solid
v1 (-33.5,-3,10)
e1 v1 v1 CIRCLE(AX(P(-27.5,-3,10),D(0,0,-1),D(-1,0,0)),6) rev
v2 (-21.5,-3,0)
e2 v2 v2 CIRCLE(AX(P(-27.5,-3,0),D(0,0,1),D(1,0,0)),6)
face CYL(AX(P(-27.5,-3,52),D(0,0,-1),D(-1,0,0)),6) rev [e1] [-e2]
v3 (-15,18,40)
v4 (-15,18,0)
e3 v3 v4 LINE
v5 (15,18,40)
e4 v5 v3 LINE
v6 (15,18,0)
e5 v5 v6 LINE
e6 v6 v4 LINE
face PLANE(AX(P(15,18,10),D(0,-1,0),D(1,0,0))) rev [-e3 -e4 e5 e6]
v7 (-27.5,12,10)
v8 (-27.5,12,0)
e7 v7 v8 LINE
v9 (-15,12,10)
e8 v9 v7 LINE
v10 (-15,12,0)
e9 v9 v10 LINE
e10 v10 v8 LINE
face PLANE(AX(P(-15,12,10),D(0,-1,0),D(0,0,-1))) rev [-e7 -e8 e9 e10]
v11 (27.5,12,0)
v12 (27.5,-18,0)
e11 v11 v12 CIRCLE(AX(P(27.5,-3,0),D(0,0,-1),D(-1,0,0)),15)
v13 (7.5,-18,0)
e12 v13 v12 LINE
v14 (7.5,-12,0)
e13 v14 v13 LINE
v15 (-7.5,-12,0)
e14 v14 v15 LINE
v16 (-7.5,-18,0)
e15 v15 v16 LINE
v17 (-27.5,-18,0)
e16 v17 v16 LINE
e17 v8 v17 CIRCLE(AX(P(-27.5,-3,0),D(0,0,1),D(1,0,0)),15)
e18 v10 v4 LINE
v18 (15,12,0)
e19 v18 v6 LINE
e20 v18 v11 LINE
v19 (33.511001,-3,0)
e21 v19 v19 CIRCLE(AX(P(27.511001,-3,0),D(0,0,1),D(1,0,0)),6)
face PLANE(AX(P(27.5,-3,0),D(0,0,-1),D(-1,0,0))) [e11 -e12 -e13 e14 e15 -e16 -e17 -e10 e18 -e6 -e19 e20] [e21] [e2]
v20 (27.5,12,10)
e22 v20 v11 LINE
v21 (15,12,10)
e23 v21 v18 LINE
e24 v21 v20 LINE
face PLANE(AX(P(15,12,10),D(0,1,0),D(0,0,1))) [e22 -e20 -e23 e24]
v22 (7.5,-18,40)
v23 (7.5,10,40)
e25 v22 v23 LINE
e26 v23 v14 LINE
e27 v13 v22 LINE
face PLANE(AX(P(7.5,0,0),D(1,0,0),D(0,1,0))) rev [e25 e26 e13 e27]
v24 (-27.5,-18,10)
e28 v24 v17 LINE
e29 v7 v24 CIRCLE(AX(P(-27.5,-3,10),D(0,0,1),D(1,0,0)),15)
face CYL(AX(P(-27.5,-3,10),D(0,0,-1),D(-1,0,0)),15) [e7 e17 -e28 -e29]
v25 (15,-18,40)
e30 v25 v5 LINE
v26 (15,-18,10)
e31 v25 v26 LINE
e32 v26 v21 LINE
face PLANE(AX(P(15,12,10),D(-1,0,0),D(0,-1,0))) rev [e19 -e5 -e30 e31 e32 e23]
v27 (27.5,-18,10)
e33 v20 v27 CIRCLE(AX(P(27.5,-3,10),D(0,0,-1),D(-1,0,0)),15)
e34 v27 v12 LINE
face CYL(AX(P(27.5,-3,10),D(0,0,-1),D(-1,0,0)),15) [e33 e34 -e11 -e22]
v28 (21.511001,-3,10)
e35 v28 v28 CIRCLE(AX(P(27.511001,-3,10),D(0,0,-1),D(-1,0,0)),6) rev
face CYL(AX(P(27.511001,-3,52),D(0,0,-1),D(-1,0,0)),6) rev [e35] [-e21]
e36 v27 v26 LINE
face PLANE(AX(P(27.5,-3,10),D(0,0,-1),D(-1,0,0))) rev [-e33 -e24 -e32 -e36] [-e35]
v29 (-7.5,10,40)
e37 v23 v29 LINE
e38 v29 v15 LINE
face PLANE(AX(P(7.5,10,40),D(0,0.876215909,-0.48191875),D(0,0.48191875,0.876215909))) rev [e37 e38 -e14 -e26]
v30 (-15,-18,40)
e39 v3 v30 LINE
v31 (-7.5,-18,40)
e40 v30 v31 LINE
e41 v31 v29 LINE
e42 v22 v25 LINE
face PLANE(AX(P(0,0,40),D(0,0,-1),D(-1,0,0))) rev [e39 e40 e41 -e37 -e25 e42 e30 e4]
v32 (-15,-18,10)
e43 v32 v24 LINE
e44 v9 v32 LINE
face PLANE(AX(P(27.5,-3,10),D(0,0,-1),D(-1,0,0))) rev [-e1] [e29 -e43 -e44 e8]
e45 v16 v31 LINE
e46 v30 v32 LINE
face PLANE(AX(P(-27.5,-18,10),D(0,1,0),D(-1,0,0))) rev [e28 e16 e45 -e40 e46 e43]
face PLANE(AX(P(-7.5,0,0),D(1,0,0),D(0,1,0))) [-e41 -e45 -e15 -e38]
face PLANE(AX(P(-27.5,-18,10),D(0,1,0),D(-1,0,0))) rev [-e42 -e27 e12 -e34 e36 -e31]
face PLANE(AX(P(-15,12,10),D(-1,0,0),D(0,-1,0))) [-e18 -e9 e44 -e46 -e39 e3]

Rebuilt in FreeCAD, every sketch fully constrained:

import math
import FreeCAD as App
import Part
import Sketcher
Q = App.Units.Quantity

doc = App.newDocument("Part")
body = doc.addObject("PartDesign::Body", "Body")

sketch1 = body.newObject("Sketcher::SketchObject", "Sketch")
sketch1.AttachmentSupport = (doc.getObject("XY_Plane"), [""])
sketch1.MapMode = "FlatFace"
sketch1.addGeometry([
    Part.ArcOfCircle(Part.Circle(App.Vector(-28, -3, 0), App.Vector(0, 0, 1), 15), math.radians(180), math.radians(270)),
    Part.LineSegment(App.Vector(-28, -18, 0), App.Vector(28, -18, 0)),
    Part.ArcOfCircle(Part.Circle(App.Vector(28, -3, 0), App.Vector(0, 0, 1), 15), math.radians(-90), math.radians(0)),
    Part.ArcOfCircle(Part.Circle(App.Vector(28, -3, 0), App.Vector(0, 0, 1), 15), math.radians(0), math.radians(90)),
    Part.LineSegment(App.Vector(28, 12, 0), App.Vector(15, 12, 0)),
    Part.LineSegment(App.Vector(15, 12, 0), App.Vector(15, 18, 0)),
    Part.LineSegment(App.Vector(15, 18, 0), App.Vector(-15, 18, 0)),
    Part.LineSegment(App.Vector(-15, 18, 0), App.Vector(-15, 12, 0)),
    Part.LineSegment(App.Vector(-15, 12, 0), App.Vector(-28, 12, 0)),
    Part.ArcOfCircle(Part.Circle(App.Vector(-28, -3, 0), App.Vector(0, 0, 1), 15), math.radians(90), math.radians(180)),
], False)
sketch1.addConstraint([
    Sketcher.Constraint("Tangent", 0, 2, 1, 1),
    Sketcher.Constraint("Tangent", 1, 2, 2, 1),
    Sketcher.Constraint("Tangent", 2, 2, 3, 1),
    Sketcher.Constraint("Tangent", 3, 2, 4, 1),
    Sketcher.Constraint("Coincident", 4, 2, 5, 1),
    Sketcher.Constraint("Coincident", 5, 2, 6, 1),
    Sketcher.Constraint("Coincident", 6, 2, 7, 1),
    Sketcher.Constraint("Coincident", 7, 2, 8, 1),
    Sketcher.Constraint("Tangent", 8, 2, 9, 1),
    Sketcher.Constraint("Tangent", 9, 2, 0, 1),
    Sketcher.Constraint("Horizontal", 1),
    Sketcher.Constraint("Horizontal", 4),
    Sketcher.Constraint("Vertical", 5),
    Sketcher.Constraint("Horizontal", 6),
    Sketcher.Constraint("Vertical", 7),
    Sketcher.Constraint("Horizontal", 8),
    Sketcher.Constraint("Equal", 0, 2),
    Sketcher.Constraint("Equal", 2, 3),
    Sketcher.Constraint("Equal", 3, 9),
    Sketcher.Constraint("Symmetric", 2, 2, 9, 2, -2),
    Sketcher.Constraint("Horizontal", 9, 3, 2, 2),
    Sketcher.Constraint("Equal", 4, 8),
    Sketcher.Constraint("Radius", 0, Q("15 mm")),
    Sketcher.Constraint("DistanceX", 1, 1, 1, 2, Q("55 mm")),
    Sketcher.Constraint("DistanceX", 6, 2, 6, 1, Q("30 mm")),
    Sketcher.Constraint("DistanceY", 5, 1, 5, 2, Q("6 mm")),
    Sketcher.Constraint("DistanceY", 0, 3, -1, 1, Q("3 mm")),
])
pad1 = body.newObject("PartDesign::Pad", "Pad")
pad1.Profile = sketch1
pad1.Length = 10

sketch2 = body.newObject("Sketcher::SketchObject", "Sketch001")
sketch2.AttachmentSupport = (doc.getObject("XY_Plane"), [""])
sketch2.MapMode = "FlatFace"
sketch2.AttachmentOffset = App.Placement(App.Vector(0, 0, 10), App.Rotation())
sketch2.addGeometry([
    Part.LineSegment(App.Vector(-15, 18, 0), App.Vector(-15, -18, 0)),
    Part.LineSegment(App.Vector(-15, -18, 0), App.Vector(15, -18, 0)),
    Part.LineSegment(App.Vector(15, -18, 0), App.Vector(15, 18, 0)),
    Part.LineSegment(App.Vector(15, 18, 0), App.Vector(-15, 18, 0)),
], False)
sketch2.addConstraint([
    Sketcher.Constraint("Coincident", 0, 2, 1, 1),
    Sketcher.Constraint("Coincident", 1, 2, 2, 1),
    Sketcher.Constraint("Coincident", 2, 2, 3, 1),
    Sketcher.Constraint("Coincident", 3, 2, 0, 1),
    Sketcher.Constraint("Vertical", 0),
    Sketcher.Constraint("Horizontal", 1),
    Sketcher.Constraint("Vertical", 2),
    Sketcher.Constraint("Horizontal", 3),
    Sketcher.Constraint("Symmetric", 0, 2, 2, 2, -1, 1),
    Sketcher.Constraint("DistanceX", 1, 1, 1, 2, Q("30 mm")),
    Sketcher.Constraint("DistanceY", 0, 2, 0, 1, Q("36 mm")),
])
pad2 = body.newObject("PartDesign::Pad", "Pad001")
pad2.Profile = sketch2
pad2.Length = 30

sketch3 = body.newObject("Sketcher::SketchObject", "Sketch002")
sketch3.AttachmentSupport = (doc.getObject("XY_Plane"), [""])
sketch3.MapMode = "FlatFace"
sketch3.addGeometry([
    Part.Circle(App.Vector(-28, -3, 0), App.Vector(0, 0, 1), 6),
    Part.Circle(App.Vector(28, -3, 0), App.Vector(0, 0, 1), 6),
], False)
sketch3.addConstraint([
    Sketcher.Constraint("Equal", 0, 1),
    Sketcher.Constraint("Horizontal", 0, 3, 1, 3),
    Sketcher.Constraint("Diameter", 0, Q("12 mm")),
    Sketcher.Constraint("DistanceY", 0, 3, -1, 1, Q("3 mm")),
    Sketcher.Constraint("DistanceX", 0, 3, -1, 1, Q("27.5 mm")),
    Sketcher.Constraint("DistanceX", -1, 1, 1, 3, Q("27.511001 mm")),
])
pocket1 = body.newObject("PartDesign::Pocket", "Pocket")
pocket1.Profile = sketch3
pocket1.Length = 52
pocket1.Reversed = True

sketch4 = body.newObject("Sketcher::SketchObject", "Sketch003")
sketch4.AttachmentSupport = (doc.getObject("YZ_Plane"), [""])
sketch4.MapMode = "FlatFace"
sketch4.AttachmentOffset = App.Placement(App.Vector(0, 0, -7.5), App.Rotation())
sketch4.addGeometry([
    Part.LineSegment(App.Vector(10, 40, 0), App.Vector(-12, 0, 0)),
    Part.LineSegment(App.Vector(-12, 0, 0), App.Vector(-18, 0, 0)),
    Part.LineSegment(App.Vector(-18, 0, 0), App.Vector(-18, 40, 0)),
    Part.LineSegment(App.Vector(-18, 40, 0), App.Vector(10, 40, 0)),
], False)
sketch4.addConstraint([
    Sketcher.Constraint("Coincident", 0, 2, 1, 1),
    Sketcher.Constraint("Coincident", 1, 2, 2, 1),
    Sketcher.Constraint("Coincident", 2, 2, 3, 1),
    Sketcher.Constraint("Coincident", 3, 2, 0, 1),
    Sketcher.Constraint("Horizontal", 1),
    Sketcher.Constraint("Vertical", 2),
    Sketcher.Constraint("Horizontal", 3),
    Sketcher.Constraint("PointOnObject", 0, 2, -1),
    Sketcher.Constraint("DistanceX", 1, 2, 1, 1, Q("6 mm")),
    Sketcher.Constraint("DistanceX", 3, 1, 3, 2, Q("28 mm")),
    Sketcher.Constraint("DistanceY", 2, 1, 2, 2, Q("40 mm")),
    Sketcher.Constraint("DistanceX", 0, 2, -1, 1, Q("12 mm")),
])
pocket2 = body.newObject("PartDesign::Pocket", "Pocket001")
pocket2.Profile = sketch4
pocket2.Length = 15
pocket2.Reversed = True

doc.recompute()
